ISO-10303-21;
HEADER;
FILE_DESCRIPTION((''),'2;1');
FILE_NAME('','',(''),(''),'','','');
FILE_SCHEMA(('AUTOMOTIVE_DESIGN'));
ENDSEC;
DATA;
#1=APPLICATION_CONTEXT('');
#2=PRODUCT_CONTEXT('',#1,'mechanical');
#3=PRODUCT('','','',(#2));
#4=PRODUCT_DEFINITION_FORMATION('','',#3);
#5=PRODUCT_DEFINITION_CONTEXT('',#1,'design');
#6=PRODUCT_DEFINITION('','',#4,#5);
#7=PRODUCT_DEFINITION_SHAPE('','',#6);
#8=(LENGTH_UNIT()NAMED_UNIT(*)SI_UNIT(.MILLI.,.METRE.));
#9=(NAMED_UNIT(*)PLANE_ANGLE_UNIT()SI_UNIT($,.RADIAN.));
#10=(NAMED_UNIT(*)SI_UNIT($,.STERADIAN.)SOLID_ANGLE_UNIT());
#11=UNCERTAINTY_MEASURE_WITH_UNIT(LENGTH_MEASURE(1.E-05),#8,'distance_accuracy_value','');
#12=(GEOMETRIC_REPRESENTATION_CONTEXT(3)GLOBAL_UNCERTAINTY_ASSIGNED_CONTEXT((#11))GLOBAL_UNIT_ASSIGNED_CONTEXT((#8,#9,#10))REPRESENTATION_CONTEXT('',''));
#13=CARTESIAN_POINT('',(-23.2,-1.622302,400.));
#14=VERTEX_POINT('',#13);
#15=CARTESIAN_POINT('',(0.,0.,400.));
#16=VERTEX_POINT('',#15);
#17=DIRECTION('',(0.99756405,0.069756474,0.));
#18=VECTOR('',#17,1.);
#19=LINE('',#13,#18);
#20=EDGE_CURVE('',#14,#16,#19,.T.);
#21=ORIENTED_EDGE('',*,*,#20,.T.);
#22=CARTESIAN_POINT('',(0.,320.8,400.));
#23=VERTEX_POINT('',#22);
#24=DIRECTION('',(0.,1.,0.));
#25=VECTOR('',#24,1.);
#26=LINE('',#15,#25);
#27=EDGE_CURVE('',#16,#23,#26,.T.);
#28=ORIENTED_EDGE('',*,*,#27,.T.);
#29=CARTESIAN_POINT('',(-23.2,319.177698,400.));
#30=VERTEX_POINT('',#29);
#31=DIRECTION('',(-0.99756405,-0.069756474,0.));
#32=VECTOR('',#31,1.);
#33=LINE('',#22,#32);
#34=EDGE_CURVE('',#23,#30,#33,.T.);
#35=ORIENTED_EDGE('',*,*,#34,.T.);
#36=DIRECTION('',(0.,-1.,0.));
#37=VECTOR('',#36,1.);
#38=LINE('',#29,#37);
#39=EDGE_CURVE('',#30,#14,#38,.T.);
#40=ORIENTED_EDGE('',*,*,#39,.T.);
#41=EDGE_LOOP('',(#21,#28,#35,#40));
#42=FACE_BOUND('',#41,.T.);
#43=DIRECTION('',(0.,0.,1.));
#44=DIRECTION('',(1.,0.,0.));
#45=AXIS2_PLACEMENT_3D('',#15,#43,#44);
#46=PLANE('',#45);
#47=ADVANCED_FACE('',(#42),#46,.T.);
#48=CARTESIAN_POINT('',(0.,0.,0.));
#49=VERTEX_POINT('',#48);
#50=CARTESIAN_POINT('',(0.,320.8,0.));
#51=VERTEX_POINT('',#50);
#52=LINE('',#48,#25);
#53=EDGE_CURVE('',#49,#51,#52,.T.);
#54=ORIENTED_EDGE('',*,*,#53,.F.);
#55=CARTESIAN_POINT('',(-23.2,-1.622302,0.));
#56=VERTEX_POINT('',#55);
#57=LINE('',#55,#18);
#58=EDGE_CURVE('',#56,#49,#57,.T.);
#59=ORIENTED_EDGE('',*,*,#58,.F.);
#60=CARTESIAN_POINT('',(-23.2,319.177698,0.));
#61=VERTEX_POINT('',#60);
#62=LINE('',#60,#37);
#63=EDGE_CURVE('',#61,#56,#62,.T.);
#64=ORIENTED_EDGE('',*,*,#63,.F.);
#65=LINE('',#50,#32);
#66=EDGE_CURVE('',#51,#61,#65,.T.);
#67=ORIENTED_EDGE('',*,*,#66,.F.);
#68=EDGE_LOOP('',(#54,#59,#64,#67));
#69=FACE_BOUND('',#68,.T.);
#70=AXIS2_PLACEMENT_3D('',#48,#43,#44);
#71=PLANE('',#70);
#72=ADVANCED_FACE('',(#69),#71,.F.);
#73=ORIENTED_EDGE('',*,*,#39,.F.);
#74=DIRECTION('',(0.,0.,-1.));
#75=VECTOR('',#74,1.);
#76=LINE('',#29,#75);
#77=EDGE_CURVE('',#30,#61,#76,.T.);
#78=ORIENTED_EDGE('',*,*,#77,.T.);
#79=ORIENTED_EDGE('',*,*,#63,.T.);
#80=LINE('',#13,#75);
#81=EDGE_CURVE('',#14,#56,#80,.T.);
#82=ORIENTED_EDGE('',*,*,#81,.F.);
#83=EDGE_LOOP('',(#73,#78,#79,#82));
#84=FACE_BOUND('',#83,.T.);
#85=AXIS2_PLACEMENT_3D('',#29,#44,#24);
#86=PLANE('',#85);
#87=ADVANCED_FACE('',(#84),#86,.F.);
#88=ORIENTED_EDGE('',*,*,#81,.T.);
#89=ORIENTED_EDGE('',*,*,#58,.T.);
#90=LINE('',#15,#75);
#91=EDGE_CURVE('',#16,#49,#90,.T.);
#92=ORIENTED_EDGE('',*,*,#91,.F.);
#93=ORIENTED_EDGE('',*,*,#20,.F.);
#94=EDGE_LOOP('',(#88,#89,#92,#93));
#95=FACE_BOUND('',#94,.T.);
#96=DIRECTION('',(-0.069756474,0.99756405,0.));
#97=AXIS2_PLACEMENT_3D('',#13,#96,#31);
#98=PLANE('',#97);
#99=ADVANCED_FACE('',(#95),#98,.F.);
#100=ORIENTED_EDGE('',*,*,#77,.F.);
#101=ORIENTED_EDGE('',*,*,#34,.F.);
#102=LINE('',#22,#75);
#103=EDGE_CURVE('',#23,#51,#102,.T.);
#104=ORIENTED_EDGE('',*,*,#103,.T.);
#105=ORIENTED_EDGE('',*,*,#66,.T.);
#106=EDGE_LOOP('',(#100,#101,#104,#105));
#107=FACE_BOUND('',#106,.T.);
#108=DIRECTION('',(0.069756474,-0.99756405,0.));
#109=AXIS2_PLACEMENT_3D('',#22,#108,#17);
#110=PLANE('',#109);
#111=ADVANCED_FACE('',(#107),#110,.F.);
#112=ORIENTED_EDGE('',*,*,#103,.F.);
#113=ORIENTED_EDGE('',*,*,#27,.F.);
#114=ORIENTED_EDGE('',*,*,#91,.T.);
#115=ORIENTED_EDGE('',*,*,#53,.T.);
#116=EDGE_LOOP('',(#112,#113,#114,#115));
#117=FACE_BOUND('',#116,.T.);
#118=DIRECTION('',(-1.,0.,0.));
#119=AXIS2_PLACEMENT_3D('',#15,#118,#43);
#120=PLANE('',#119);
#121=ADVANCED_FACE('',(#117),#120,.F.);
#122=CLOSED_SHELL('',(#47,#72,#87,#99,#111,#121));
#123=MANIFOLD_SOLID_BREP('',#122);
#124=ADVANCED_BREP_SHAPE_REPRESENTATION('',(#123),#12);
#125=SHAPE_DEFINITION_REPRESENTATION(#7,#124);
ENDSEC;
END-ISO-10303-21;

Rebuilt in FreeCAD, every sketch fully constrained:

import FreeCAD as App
import Part
import Sketcher
Q = App.Units.Quantity

doc = App.newDocument("Part")
body = doc.addObject("PartDesign::Body", "Body")

sketch1 = body.newObject("Sketcher::SketchObject", "Sketch")
sketch1.AttachmentSupport = (doc.getObject("XY_Plane"), [""])
sketch1.MapMode = "FlatFace"
sketch1.addGeometry([
    Part.LineSegment(App.Vector(0, 0, 0), App.Vector(0, 320.8, 0)),
    Part.LineSegment(App.Vector(0, 320.8, 0), App.Vector(-23.2, 319.177698, 0)),
    Part.LineSegment(App.Vector(-23.2, 319.177698, 0), App.Vector(-23.2, -1.622302, 0)),
    Part.LineSegment(App.Vector(-23.2, -1.622302, 0), App.Vector(0, 0, 0)),
], False)
sketch1.addConstraint([
    Sketcher.Constraint("Coincident", 0, 2, 1, 1),
    Sketcher.Constraint("Coincident", 1, 2, 2, 1),
    Sketcher.Constraint("Coincident", 2, 2, 3, 1),
    Sketcher.Constraint("Coincident", 3, 2, 0, 1),
    Sketcher.Constraint("Vertical", 0),
    Sketcher.Constraint("Vertical", 2),
    Sketcher.Constraint("Coincident", 3, 2, -1, 1),
    Sketcher.Constraint("Parallel", 1, 3),
    Sketcher.Constraint("Angle", 1, Q("-176 deg")),
    Sketcher.Constraint("DistanceY", 0, 1, 0, 2, Q("320.8 mm")),
    Sketcher.Constraint("DistanceX", 1, 2, -1, 1, Q("23.2 mm")),
])
pad1 = body.newObject("PartDesign::Pad", "Pad")
pad1.Profile = sketch1
pad1.Length = 400

doc.recompute()
